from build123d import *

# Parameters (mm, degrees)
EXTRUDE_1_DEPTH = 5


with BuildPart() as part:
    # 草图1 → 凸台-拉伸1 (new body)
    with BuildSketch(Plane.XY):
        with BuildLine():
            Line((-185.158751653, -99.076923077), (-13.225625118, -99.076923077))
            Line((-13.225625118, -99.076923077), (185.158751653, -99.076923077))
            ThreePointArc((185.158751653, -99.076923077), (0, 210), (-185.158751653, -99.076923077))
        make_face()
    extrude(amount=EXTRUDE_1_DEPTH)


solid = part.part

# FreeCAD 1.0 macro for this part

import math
import FreeCAD as App
import Part
import Sketcher
Q = App.Units.Quantity

doc = App.newDocument("Part")
body = doc.addObject("PartDesign::Body", "Body")

sketch1 = doc.addObject("Sketcher::SketchObject", "Sketch")
body.addObject(sketch1)
sketch1.AttachmentSupport = (doc.XY_Plane, [""])
sketch1.MapMode = "FlatFace"
sketch1.addGeometry([
    Part.LineSegment(App.Vector(-185, -99, 0), App.Vector(185, -99, 0)),
    Part.ArcOfCircle(Part.Circle(App.Vector(0, 0, 0), App.Vector(0, 0, 1), 210), math.radians(-28), math.radians(208)),
], False)
sketch1.addConstraint([
    Sketcher.Constraint("Coincident", 0, 1, 1, 2),
    Sketcher.Constraint("Coincident", 1, 1, 0, 2),
    Sketcher.Constraint("Horizontal", 0),
    Sketcher.Constraint("Coincident", 1, 3, -1, 1),
    Sketcher.Constraint("Radius", 1, Q("210 mm")),
    Sketcher.Constraint("DistanceX", 0, 1, 0, 2, Q("370.317503 mm")),
])
pad1 = doc.addObject("PartDesign::Pad", "Pad")
body.addObject(pad1)
pad1.Profile = sketch1
pad1.Length = 5

doc.recompute()
